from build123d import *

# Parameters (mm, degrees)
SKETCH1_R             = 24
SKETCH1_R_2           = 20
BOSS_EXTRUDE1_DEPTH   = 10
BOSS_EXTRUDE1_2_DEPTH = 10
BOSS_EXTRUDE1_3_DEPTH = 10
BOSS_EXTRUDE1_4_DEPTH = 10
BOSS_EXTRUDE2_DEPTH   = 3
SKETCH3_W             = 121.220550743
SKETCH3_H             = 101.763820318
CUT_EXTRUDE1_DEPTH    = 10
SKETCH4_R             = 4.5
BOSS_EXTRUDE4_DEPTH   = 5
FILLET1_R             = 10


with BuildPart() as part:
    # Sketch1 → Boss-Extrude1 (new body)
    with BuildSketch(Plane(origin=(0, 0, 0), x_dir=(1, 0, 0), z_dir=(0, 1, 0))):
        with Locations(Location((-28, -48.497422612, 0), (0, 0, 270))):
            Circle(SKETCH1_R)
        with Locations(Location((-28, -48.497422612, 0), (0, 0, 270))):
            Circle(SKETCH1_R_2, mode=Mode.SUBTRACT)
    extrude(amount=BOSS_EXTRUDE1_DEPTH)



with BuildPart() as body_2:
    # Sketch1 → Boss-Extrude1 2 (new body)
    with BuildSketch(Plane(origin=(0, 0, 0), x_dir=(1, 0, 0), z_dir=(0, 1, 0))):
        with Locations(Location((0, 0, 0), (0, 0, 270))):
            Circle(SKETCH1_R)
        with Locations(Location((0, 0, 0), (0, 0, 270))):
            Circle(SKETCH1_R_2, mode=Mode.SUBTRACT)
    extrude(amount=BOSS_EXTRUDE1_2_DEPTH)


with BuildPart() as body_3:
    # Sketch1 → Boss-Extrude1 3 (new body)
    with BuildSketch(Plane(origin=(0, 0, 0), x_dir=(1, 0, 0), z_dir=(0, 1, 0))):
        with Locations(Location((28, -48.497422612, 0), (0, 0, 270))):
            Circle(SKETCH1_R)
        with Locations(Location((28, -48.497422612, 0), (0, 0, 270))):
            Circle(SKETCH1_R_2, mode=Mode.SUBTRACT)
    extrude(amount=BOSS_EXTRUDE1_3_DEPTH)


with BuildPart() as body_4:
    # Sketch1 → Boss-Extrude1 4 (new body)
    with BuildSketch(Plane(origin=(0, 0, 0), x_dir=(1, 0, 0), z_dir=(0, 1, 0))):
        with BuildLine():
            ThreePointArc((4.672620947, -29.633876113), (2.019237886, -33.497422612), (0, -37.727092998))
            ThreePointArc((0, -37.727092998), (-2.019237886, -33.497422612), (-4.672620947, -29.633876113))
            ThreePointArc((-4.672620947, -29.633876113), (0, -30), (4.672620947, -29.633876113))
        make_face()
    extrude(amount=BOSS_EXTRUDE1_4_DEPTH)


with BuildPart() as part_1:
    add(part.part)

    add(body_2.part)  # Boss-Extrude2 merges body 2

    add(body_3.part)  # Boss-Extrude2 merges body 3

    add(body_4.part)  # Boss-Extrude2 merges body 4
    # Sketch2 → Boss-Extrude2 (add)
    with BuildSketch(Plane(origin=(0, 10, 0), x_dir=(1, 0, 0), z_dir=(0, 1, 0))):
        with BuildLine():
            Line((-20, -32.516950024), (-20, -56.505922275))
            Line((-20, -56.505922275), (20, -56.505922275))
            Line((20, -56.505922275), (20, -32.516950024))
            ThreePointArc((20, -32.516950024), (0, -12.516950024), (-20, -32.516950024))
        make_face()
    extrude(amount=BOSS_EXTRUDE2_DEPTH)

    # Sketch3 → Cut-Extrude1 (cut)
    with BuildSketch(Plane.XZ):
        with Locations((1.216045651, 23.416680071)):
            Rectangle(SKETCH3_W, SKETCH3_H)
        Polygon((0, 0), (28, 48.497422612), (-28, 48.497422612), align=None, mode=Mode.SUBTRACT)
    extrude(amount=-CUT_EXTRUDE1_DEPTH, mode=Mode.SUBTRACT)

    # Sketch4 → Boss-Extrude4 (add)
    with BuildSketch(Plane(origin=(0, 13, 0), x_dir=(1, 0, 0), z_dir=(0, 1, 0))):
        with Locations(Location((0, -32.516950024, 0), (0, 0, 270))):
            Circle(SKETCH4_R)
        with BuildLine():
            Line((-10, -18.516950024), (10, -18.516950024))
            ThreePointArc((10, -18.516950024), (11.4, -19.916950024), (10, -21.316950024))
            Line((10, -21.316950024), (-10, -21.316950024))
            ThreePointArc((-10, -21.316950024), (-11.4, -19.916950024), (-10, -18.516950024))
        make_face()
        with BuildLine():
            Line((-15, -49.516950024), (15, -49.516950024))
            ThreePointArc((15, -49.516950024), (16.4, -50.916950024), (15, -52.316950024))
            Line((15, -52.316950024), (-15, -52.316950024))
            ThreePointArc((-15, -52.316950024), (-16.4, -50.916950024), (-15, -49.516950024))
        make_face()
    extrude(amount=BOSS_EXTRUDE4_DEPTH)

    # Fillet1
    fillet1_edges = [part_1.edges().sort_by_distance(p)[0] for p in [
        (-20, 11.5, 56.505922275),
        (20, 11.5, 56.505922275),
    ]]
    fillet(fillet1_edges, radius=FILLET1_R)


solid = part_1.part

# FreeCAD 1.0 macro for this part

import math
import FreeCAD as App
import Part
import Sketcher
Q = App.Units.Quantity


def edges_at(feature, points):
    """Names of the edges that pass closest to the given points."""
    edges = feature.Shape.Edges
    near = lambda p: min(range(len(edges)), key=lambda i: edges[i].distToShape(Part.Vertex(*p))[0])
    return sorted({f"Edge{near(p) + 1}" for p in points})


def add_polygon(sketch, points):
    """Adds a closed chain of lines whose ends are joined by coincident constraints."""
    first, n = sketch.GeometryCount, len(points)
    for a, b in zip(points, points[1:] + points[:1]):
        sketch.addGeometry(Part.LineSegment(App.Vector(*a, 0), App.Vector(*b, 0)), False)
    for i in range(n):
        sketch.addConstraint(Sketcher.Constraint("Coincident", first + i, 2, first + (i + 1) % n, 1))

doc = App.newDocument("Part")
body = doc.addObject("PartDesign::Body", "Body")

sketch1 = body.newObject("Sketcher::SketchObject", "Sketch")
sketch1.AttachmentSupport = (doc.getObject("XZ_Plane"), [""])
sketch1.MapMode = "FlatFace"
sketch1.addGeometry([
    Part.Circle(App.Vector(-28, 48.497423, 0), App.Vector(0, 0, 1), 24),
    Part.Circle(App.Vector(-28, 48.497423, 0), App.Vector(0, 0, 1), 20),
], False)
sketch1.addConstraint([
    Sketcher.Constraint("Coincident", 1, 3, 0, 3),
    Sketcher.Constraint("Diameter", 0, Q("48 mm")),
    Sketcher.Constraint("Diameter", 1, Q("40 mm")),
    Sketcher.Constraint("DistanceX", 0, 3, -1, 1, Q("28 mm")),
    Sketcher.Constraint("DistanceY", -1, 1, 0, 3, Q("48.497423 mm")),
])
pad1 = body.newObject("PartDesign::Pad", "Pad")
pad1.Profile = sketch1
pad1.Length = 10
pad1.Reversed = True
body2 = doc.addObject("PartDesign::Body", "Body001")

sketch2 = body2.newObject("Sketcher::SketchObject", "Sketch001")
sketch2.AttachmentSupport = (doc.getObject("XZ_Plane001"), [""])
sketch2.MapMode = "FlatFace"
sketch2.addGeometry([
    Part.Circle(App.Vector(0, 0, 0), App.Vector(0, 0, 1), 24),
    Part.Circle(App.Vector(0, 0, 0), App.Vector(0, 0, 1), 20),
], False)
sketch2.addConstraint([
    Sketcher.Constraint("Coincident", 0, 3, -1, 1),
    Sketcher.Constraint("Coincident", 1, 3, -1, 1),
    Sketcher.Constraint("Diameter", 0, Q("48 mm")),
    Sketcher.Constraint("Diameter", 1, Q("40 mm")),
])
pad2 = body2.newObject("PartDesign::Pad", "Pad001")
pad2.Profile = sketch2
pad2.Length = 10
pad2.Reversed = True
body3 = doc.addObject("PartDesign::Body", "Body002")

sketch3 = body3.newObject("Sketcher::SketchObject", "Sketch002")
sketch3.AttachmentSupport = (doc.getObject("XZ_Plane002"), [""])
sketch3.MapMode = "FlatFace"
sketch3.addGeometry([
    Part.Circle(App.Vector(28, 48.497423, 0), App.Vector(0, 0, 1), 24),
    Part.Circle(App.Vector(28, 48.497423, 0), App.Vector(0, 0, 1), 20),
], False)
sketch3.addConstraint([
    Sketcher.Constraint("Coincident", 1, 3, 0, 3),
    Sketcher.Constraint("Diameter", 0, Q("48 mm")),
    Sketcher.Constraint("Diameter", 1, Q("40 mm")),
    Sketcher.Constraint("DistanceX", -1, 1, 0, 3, Q("28 mm")),
    Sketcher.Constraint("DistanceY", -1, 1, 0, 3, Q("48.497423 mm")),
])
pad3 = body3.newObject("PartDesign::Pad", "Pad002")
pad3.Profile = sketch3
pad3.Length = 10
pad3.Reversed = True
body4 = doc.addObject("PartDesign::Body", "Body003")

sketch4 = body4.newObject("Sketcher::SketchObject", "Sketch003")
sketch4.AttachmentSupport = (doc.getObject("XZ_Plane003"), [""])
sketch4.MapMode = "FlatFace"
sketch4.addGeometry([
    Part.ArcOfCircle(Part.Circle(App.Vector(28, 48.497423, 0), App.Vector(0, 0, 1), 30), math.radians(-158.96053), math.radians(-141.03947)),
    Part.ArcOfCircle(Part.Circle(App.Vector(0, 0, 0), App.Vector(0, 0, 1), 30), math.radians(81.03947), math.radians(98.96053)),
    Part.ArcOfCircle(Part.Circle(App.Vector(-28, 48.497423, 0), App.Vector(0, 0, 1), 30), math.radians(-38.96053), math.radians(-21.03947)),
], False)
sketch4.addConstraint([
    Sketcher.Constraint("Coincident", 0, 2, 1, 1),
    Sketcher.Constraint("Coincident", 1, 2, 2, 1),
    Sketcher.Constraint("Coincident", 2, 2, 0, 1),
    Sketcher.Constraint("Coincident", 1, 3, -1, 1),
    Sketcher.Constraint("Equal", 0, 1),
    Sketcher.Constraint("Equal", 1, 2),
    Sketcher.Constraint("Symmetric", 0, 3, 2, 3, -2),
    Sketcher.Constraint("Radius", 0, Q("30 mm")),
    Sketcher.Constraint("DistanceX", -1, 1, 0, 3, Q("28 mm")),
    Sketcher.Constraint("DistanceX", -1, 1, 0, 2, Q("4.672621 mm")),
])
pad4 = body4.newObject("PartDesign::Pad", "Pad003")
pad4.Profile = sketch4
pad4.Length = 10
pad4.Reversed = True
body.AllowCompound = True
doc.recompute()

boolean = body.newObject("PartDesign::Boolean", "Boolean")
boolean.Type = "Fuse"
boolean.addObjects([body2])
doc.recompute()

boolean2 = body.newObject("PartDesign::Boolean", "Boolean001")
boolean2.Type = "Fuse"
boolean2.addObjects([body3])
doc.recompute()

boolean3 = body.newObject("PartDesign::Boolean", "Boolean002")
boolean3.Type = "Fuse"
boolean3.addObjects([body4])

sketch5 = body.newObject("Sketcher::SketchObject", "Sketch004")
sketch5.AttachmentSupport = (doc.getObject("XZ_Plane"), [""])
sketch5.MapMode = "FlatFace"
sketch5.AttachmentOffset = App.Placement(App.Vector(0, 0, -10), App.Rotation())
sketch5.addGeometry([
    Part.LineSegment(App.Vector(-20, 32.51695, 0), App.Vector(-20, 56.505922, 0)),
    Part.LineSegment(App.Vector(-20, 56.505922, 0), App.Vector(20, 56.505922, 0)),
    Part.LineSegment(App.Vector(20, 56.505922, 0), App.Vector(20, 32.51695, 0)),
    Part.ArcOfCircle(Part.Circle(App.Vector(0, 32.51695, 0), App.Vector(0, 0, 1), 20), math.radians(180), math.radians(360)),
], False)
sketch5.addConstraint([
    Sketcher.Constraint("Coincident", 0, 2, 1, 1),
    Sketcher.Constraint("Coincident", 1, 2, 2, 1),
    Sketcher.Constraint("Tangent", 2, 2, 3, 2),
    Sketcher.Constraint("Tangent", 3, 1, 0, 1),
    Sketcher.Constraint("Vertical", 0),
    Sketcher.Constraint("Horizontal", 1),
    Sketcher.Constraint("Vertical", 2),
    Sketcher.Constraint("PointOnObject", 3, 3, -2),
    Sketcher.Constraint("Radius", 3, Q("20 mm")),
    Sketcher.Constraint("DistanceY", 0, 1, 0, 2, Q("23.988972 mm")),
    Sketcher.Constraint("DistanceY", -1, 1, 3, 3, Q("32.51695 mm")),
])
pad5 = body.newObject("PartDesign::Pad", "Pad004")
pad5.Profile = sketch5
pad5.Length = 3
pad5.Reversed = True

sketch6 = body.newObject("Sketcher::SketchObject", "Sketch005")
sketch6.AttachmentSupport = (doc.getObject("XZ_Plane"), [""])
sketch6.MapMode = "FlatFace"
add_polygon(sketch6, [(-59.39423, 74.29859), (-59.39423, -27.46523), (61.826321, -27.46523), (61.826321, 74.29859)])
add_polygon(sketch6, [(28, 48.497423), (0, 0), (-28, 48.497423)])
sketch6.addConstraint([
    Sketcher.Constraint("Vertical", 0),
    Sketcher.Constraint("Horizontal", 1),
    Sketcher.Constraint("Vertical", 2),
    Sketcher.Constraint("Horizontal", 3),
    Sketcher.Constraint("Horizontal", 6),
    Sketcher.Constraint("Coincident", 4, 2, -1, 1),
    Sketcher.Constraint("Equal", 4, 5),
    Sketcher.Constraint("DistanceX", 6, 1, 6, 2, Q("56 mm")),
    Sketcher.Constraint("Angle", 4, Q("-120 deg")),
    Sketcher.Constraint("DistanceX", 1, 1, 1, 2, Q("121.220551 mm")),
    Sketcher.Constraint("DistanceY", 0, 2, 0, 1, Q("101.76382 mm")),
    Sketcher.Constraint("DistanceX", 0, 2, -1, 1, Q("59.39423 mm")),
    Sketcher.Constraint("DistanceY", 0, 2, -1, 1, Q("27.46523 mm")),
])
pocket1 = body.newObject("PartDesign::Pocket", "Pocket")
pocket1.Profile = sketch6
pocket1.Length = 10

sketch7 = body.newObject("Sketcher::SketchObject", "Sketch006")
sketch7.AttachmentSupport = (doc.getObject("XZ_Plane"), [""])
sketch7.MapMode = "FlatFace"
sketch7.AttachmentOffset = App.Placement(App.Vector(0, 0, -13), App.Rotation())
sketch7.addGeometry([
    Part.Circle(App.Vector(0, 32.51695, 0), App.Vector(0, 0, 1), 4.5),
    Part.LineSegment(App.Vector(10, 18.51695, 0), App.Vector(-10, 18.51695, 0)),
    Part.ArcOfCircle(Part.Circle(App.Vector(-10, 19.91695, 0), App.Vector(0, 0, 1), 1.4), math.radians(90), math.radians(270)),
    Part.LineSegment(App.Vector(-10, 21.31695, 0), App.Vector(10, 21.31695, 0)),
    Part.ArcOfCircle(Part.Circle(App.Vector(10, 19.91695, 0), App.Vector(0, 0, 1), 1.4), math.radians(-90), math.radians(90)),
    Part.LineSegment(App.Vector(15, 49.51695, 0), App.Vector(-15, 49.51695, 0)),
    Part.ArcOfCircle(Part.Circle(App.Vector(-15, 50.91695, 0), App.Vector(0, 0, 1), 1.4), math.radians(90), math.radians(270)),
    Part.LineSegment(App.Vector(-15, 52.31695, 0), App.Vector(15, 52.31695, 0)),
    Part.ArcOfCircle(Part.Circle(App.Vector(15, 50.91695, 0), App.Vector(0, 0, 1), 1.4), math.radians(-90), math.radians(90)),
], False)
sketch7.addConstraint([
    Sketcher.Constraint("Tangent", 1, 2, 2, 2),
    Sketcher.Constraint("Tangent", 2, 1, 3, 1),
    Sketcher.Constraint("Tangent", 3, 2, 4, 2),
    Sketcher.Constraint("Tangent", 4, 1, 1, 1),
    Sketcher.Constraint("Tangent", 5, 2, 6, 2),
    Sketcher.Constraint("Tangent", 6, 1, 7, 1),
    Sketcher.Constraint("Tangent", 7, 2, 8, 2),
    Sketcher.Constraint("Tangent", 8, 1, 5, 1),
    Sketcher.Constraint("Horizontal", 1),
    Sketcher.Constraint("Horizontal", 3),
    Sketcher.Constraint("Horizontal", 5),
    Sketcher.Constraint("Horizontal", 7),
    Sketcher.Constraint("Equal", 4, 6),
    Sketcher.Constraint("PointOnObject", 0, 3, -2),
    Sketcher.Constraint("Diameter", 0, Q("9 mm")),
    Sketcher.Constraint("Radius", 2, Q("1.4 mm")),
    Sketcher.Constraint("DistanceX", 1, 2, 1, 1, Q("20 mm")),
    Sketcher.Constraint("DistanceX", 5, 2, 5, 1, Q("30 mm")),
    Sketcher.Constraint("DistanceX", 2, 3, -1, 1, Q("10 mm")),
    Sketcher.Constraint("DistanceX", 6, 3, -1, 1, Q("15 mm")),
    Sketcher.Constraint("DistanceY", 2, 3, 6, 3, Q("31 mm")),
    Sketcher.Constraint("DistanceY", 1, 2, 0, 3, Q("14 mm")),
    Sketcher.Constraint("DistanceY", -1, 1, 0, 3, Q("32.51695 mm")),
])
pad6 = body.newObject("PartDesign::Pad", "Pad005")
pad6.Profile = sketch7
pad6.Length = 5
pad6.Reversed = True
doc.recompute()

fillet = body.newObject("PartDesign::Fillet", "Fillet")
fillet.Base = (pad6, edges_at(pad6, [(-20, 11.5, 56.506), (20, 11.5, 56.506)]))
fillet.Radius = 10

doc.recompute()
